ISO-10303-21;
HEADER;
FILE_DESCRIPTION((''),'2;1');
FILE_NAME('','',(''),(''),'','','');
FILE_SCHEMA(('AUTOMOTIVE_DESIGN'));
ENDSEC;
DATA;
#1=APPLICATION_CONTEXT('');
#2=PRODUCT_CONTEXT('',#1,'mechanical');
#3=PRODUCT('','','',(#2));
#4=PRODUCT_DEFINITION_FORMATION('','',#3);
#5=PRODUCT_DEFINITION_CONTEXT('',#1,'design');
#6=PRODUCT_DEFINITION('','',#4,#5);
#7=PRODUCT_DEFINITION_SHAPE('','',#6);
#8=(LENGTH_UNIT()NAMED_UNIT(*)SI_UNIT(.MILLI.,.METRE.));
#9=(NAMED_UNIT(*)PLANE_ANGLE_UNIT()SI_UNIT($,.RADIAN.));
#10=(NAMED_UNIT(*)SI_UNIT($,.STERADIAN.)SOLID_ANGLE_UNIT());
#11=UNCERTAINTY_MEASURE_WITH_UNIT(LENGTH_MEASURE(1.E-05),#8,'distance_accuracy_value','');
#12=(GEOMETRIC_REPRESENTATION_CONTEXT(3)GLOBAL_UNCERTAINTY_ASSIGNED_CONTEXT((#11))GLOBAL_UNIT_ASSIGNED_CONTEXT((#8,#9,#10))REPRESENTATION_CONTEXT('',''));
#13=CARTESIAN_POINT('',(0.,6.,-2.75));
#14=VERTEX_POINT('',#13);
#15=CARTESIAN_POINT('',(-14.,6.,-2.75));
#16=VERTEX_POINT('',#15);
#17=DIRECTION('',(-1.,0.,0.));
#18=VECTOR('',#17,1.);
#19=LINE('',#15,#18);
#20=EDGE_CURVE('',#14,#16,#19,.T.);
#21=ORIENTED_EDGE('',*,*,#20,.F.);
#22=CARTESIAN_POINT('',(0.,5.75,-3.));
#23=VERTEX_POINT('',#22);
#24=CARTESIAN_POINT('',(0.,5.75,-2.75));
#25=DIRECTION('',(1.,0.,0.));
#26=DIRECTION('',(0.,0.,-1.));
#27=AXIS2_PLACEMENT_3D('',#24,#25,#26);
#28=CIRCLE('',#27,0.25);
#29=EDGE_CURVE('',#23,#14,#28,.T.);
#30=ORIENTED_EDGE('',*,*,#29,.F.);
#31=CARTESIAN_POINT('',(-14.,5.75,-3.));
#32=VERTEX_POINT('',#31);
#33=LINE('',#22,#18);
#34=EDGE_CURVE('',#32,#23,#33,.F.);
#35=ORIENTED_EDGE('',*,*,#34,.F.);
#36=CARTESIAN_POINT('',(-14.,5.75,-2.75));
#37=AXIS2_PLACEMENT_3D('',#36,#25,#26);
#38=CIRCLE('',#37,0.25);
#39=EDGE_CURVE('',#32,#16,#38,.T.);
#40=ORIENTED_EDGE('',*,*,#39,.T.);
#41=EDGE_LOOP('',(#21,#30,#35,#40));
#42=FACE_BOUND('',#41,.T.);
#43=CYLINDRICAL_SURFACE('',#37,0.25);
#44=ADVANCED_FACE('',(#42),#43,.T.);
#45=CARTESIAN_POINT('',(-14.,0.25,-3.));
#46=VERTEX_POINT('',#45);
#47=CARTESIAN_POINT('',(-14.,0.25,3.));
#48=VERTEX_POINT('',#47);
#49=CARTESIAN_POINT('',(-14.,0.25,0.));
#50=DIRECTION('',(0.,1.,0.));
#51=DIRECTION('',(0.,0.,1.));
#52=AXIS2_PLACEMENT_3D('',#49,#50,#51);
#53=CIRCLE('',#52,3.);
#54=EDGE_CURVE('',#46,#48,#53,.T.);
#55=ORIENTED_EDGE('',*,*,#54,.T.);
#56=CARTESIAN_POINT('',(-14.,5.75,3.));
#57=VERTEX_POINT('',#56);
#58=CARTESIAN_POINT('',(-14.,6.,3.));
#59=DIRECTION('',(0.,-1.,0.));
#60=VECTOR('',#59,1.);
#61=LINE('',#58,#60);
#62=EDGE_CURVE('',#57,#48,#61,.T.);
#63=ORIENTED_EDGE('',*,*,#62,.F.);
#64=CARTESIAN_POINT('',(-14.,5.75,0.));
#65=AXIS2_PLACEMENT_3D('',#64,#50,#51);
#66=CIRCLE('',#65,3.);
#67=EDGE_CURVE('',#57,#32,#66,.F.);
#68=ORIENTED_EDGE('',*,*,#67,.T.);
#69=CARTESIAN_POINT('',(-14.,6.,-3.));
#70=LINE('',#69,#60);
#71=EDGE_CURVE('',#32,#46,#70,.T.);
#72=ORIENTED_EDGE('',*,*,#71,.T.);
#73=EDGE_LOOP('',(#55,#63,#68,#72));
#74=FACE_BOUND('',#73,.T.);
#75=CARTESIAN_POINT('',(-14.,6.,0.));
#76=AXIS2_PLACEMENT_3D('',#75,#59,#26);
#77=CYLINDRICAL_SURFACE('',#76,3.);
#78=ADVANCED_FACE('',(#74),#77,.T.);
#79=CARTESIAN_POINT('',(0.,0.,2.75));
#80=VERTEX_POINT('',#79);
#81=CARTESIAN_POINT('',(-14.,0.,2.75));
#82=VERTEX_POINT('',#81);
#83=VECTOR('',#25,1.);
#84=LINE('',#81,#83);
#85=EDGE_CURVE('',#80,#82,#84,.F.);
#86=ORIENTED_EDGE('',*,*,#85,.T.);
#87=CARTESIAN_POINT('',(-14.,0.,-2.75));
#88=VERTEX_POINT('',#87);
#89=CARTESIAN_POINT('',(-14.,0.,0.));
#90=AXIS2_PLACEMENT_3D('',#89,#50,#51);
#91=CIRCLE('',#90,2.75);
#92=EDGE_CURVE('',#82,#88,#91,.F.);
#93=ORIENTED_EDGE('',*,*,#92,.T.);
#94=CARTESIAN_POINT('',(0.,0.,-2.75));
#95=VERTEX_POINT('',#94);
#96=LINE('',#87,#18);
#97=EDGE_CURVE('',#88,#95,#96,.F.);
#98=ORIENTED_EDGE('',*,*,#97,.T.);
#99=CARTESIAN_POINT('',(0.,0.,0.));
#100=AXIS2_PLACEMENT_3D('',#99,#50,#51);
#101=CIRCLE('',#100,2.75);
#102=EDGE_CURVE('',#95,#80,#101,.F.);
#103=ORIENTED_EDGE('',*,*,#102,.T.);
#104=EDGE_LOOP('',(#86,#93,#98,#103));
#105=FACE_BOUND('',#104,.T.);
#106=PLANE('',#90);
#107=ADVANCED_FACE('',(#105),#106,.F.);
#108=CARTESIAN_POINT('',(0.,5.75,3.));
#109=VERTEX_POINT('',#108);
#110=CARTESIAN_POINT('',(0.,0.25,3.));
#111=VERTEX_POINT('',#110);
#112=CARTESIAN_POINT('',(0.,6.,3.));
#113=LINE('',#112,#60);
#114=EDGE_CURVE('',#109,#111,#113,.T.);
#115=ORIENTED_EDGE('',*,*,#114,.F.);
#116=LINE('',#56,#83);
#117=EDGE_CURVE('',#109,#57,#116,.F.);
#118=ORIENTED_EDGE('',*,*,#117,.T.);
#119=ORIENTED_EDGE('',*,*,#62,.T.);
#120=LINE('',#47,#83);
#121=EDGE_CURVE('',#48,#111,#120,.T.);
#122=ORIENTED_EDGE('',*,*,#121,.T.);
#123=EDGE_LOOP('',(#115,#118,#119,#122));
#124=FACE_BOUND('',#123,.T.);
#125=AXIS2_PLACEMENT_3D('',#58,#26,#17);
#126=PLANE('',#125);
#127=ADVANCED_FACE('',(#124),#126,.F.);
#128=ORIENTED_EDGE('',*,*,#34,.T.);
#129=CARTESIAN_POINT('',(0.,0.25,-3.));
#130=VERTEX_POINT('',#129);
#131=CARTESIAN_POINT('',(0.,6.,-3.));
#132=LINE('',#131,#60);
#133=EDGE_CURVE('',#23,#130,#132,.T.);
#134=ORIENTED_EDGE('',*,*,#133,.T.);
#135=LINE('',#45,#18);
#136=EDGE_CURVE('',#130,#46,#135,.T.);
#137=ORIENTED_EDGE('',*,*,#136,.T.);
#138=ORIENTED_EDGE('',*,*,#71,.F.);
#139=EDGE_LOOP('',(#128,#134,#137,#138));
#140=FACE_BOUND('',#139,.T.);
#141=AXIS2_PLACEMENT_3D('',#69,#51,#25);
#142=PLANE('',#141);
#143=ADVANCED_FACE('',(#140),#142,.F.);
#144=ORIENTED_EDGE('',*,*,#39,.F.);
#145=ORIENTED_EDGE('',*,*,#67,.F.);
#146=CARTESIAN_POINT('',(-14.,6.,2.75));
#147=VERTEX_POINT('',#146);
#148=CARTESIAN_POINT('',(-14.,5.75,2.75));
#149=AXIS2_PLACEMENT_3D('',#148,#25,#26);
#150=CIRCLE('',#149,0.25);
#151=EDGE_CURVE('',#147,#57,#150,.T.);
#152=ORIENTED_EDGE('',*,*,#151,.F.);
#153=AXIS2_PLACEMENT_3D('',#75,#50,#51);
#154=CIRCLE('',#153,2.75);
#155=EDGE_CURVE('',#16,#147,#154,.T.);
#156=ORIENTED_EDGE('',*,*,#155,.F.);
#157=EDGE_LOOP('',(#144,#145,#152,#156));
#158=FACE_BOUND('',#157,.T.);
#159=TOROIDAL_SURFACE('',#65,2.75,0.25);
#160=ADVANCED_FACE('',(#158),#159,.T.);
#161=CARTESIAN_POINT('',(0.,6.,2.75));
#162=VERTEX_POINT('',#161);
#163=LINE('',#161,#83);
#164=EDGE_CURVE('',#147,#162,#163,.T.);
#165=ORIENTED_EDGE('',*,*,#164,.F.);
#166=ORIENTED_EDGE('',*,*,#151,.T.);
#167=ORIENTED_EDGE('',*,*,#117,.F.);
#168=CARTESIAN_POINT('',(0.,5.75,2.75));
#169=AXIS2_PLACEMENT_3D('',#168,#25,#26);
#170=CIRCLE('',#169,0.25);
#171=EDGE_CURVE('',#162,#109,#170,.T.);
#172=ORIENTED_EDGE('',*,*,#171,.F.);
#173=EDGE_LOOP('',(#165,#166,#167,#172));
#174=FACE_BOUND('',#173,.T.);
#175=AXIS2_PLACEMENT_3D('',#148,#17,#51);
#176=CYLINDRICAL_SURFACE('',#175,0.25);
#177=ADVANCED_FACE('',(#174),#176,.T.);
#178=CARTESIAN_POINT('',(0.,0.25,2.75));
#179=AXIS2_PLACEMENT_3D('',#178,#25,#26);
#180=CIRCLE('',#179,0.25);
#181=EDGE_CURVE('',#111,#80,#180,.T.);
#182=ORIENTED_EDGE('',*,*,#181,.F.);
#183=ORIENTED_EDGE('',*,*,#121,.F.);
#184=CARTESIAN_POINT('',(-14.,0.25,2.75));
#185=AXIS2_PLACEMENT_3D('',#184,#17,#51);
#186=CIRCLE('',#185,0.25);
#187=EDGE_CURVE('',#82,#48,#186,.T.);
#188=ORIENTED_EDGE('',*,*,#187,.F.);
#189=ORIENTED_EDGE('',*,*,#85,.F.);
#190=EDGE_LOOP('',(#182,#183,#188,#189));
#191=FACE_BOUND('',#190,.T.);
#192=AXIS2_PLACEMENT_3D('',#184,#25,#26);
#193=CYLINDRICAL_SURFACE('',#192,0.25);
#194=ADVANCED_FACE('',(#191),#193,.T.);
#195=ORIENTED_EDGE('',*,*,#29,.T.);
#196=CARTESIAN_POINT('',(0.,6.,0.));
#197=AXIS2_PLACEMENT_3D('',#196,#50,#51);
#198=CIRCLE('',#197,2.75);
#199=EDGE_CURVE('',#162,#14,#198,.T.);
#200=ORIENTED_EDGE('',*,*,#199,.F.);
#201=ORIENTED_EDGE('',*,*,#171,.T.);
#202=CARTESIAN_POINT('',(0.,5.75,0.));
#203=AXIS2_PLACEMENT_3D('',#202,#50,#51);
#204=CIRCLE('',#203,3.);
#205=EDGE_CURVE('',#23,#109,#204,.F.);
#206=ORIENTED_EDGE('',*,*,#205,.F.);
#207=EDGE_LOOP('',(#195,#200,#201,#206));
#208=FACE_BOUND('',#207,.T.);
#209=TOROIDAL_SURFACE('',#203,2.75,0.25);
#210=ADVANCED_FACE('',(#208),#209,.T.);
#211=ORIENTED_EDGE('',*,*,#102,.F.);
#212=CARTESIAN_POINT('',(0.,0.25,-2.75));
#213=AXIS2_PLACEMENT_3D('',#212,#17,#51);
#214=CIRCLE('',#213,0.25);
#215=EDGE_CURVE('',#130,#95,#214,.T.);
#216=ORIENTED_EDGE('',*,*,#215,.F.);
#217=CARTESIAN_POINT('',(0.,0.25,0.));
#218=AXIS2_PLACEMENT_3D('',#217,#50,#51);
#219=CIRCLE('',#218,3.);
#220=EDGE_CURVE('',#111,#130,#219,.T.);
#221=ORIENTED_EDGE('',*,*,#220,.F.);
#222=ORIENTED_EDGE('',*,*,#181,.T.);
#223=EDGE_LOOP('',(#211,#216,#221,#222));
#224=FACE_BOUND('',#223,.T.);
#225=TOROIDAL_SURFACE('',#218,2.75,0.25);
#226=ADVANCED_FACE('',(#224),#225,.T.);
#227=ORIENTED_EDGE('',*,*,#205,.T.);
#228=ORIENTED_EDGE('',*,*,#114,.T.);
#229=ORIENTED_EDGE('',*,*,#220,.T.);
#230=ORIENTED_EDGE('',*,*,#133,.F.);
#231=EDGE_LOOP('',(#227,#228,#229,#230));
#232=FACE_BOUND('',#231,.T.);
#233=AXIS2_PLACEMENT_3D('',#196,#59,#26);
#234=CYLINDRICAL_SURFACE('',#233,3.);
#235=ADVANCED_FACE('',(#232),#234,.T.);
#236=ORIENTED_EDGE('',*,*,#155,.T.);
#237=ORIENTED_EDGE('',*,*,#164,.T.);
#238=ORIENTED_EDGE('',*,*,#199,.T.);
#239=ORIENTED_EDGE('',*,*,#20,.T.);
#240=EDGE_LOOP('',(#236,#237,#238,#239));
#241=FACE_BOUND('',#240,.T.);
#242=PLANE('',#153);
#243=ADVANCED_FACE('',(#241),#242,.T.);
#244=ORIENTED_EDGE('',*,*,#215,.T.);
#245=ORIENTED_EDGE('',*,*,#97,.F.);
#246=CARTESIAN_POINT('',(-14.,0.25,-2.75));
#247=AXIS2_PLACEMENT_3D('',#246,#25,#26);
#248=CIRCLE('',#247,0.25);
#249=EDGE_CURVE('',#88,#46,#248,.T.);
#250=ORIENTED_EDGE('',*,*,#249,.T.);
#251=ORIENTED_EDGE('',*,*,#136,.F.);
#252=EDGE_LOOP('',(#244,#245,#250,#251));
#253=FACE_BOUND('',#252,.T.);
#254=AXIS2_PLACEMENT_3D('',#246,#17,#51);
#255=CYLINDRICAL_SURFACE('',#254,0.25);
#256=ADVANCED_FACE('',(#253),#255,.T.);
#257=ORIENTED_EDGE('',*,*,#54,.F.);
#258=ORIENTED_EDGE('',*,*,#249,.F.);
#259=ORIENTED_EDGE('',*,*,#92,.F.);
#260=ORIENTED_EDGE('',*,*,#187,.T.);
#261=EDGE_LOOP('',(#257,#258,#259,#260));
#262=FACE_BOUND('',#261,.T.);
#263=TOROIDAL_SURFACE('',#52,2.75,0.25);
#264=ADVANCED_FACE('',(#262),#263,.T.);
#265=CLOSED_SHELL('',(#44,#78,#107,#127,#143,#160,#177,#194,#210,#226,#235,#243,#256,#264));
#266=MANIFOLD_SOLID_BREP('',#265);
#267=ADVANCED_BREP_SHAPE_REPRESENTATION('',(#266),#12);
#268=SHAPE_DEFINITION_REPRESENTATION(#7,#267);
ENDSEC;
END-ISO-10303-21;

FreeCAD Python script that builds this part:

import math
import FreeCAD as App
import Part
import Sketcher
from FreeCAD import Vector


def edges_at(feature, points):
    """Names of the edges that pass closest to the given points."""
    edges = feature.Shape.Edges
    near = lambda p: min(range(len(edges)), key=lambda i: edges[i].distToShape(Part.Vertex(*p))[0])
    return sorted({f"Edge{near(p) + 1}" for p in points})

doc = App.newDocument("Part")
body = doc.addObject("PartDesign::Body", "Body")

# Sketch on XZ plane
sketch1 = body.newObject("Sketcher::SketchObject", "Sketch")
sketch1.AttachmentSupport = (doc.getObject("XZ_Plane"), [""])
sketch1.MapMode = "FlatFace"
sketch1.addGeometry(Part.LineSegment(Vector(0, -3, 0), Vector(-14, -3, 0)), False)
sketch1.addGeometry(Part.ArcOfCircle(Part.Circle(Vector(-14, 0, 0), Vector(0, 0, 1), 3), math.radians(90), math.radians(270)), False)
sketch1.addGeometry(Part.LineSegment(Vector(-14, 3, 0), Vector(0, 3, 0)), False)
sketch1.addGeometry(Part.ArcOfCircle(Part.Circle(Vector(0, 0, 0), Vector(0, 0, 1), 3), math.radians(-90), math.radians(90)), False)
sketch1.addConstraint(Sketcher.Constraint("Tangent", 0, 2, 1, 2))
sketch1.addConstraint(Sketcher.Constraint("Tangent", 1, 1, 2, 1))
sketch1.addConstraint(Sketcher.Constraint("Tangent", 2, 2, 3, 2))
sketch1.addConstraint(Sketcher.Constraint("Tangent", 3, 1, 0, 1))
sketch1.addConstraint(Sketcher.Constraint("Horizontal", 0))
sketch1.addConstraint(Sketcher.Constraint("Horizontal", 2))
sketch1.addConstraint(Sketcher.Constraint("Coincident", 3, 3, -1, 1))
sketch1.addConstraint(Sketcher.Constraint("Radius", 1, 3.0))
sketch1.addConstraint(Sketcher.Constraint("DistanceX", 0, 2, 0, 1, 14.0))
pad1 = body.newObject("PartDesign::Pad", "Pad")
pad1.Profile = sketch1
pad1.Length = 6
pad1.Reversed = True
doc.recompute()

fillet = body.newObject("PartDesign::Fillet", "Fillet")
fillet.Base = (pad1, edges_at(pad1, [
    (3, 6, 0),
    (-7, 6, -3),
    (-17, 6, 0),
    (-7, 0, -3),
    (3, 0, 0),
    (-7, 0, 3),
    (-17, 0, 0),
    (-7, 6, 3),
]))
fillet.Radius = 0.25

doc.recompute()
